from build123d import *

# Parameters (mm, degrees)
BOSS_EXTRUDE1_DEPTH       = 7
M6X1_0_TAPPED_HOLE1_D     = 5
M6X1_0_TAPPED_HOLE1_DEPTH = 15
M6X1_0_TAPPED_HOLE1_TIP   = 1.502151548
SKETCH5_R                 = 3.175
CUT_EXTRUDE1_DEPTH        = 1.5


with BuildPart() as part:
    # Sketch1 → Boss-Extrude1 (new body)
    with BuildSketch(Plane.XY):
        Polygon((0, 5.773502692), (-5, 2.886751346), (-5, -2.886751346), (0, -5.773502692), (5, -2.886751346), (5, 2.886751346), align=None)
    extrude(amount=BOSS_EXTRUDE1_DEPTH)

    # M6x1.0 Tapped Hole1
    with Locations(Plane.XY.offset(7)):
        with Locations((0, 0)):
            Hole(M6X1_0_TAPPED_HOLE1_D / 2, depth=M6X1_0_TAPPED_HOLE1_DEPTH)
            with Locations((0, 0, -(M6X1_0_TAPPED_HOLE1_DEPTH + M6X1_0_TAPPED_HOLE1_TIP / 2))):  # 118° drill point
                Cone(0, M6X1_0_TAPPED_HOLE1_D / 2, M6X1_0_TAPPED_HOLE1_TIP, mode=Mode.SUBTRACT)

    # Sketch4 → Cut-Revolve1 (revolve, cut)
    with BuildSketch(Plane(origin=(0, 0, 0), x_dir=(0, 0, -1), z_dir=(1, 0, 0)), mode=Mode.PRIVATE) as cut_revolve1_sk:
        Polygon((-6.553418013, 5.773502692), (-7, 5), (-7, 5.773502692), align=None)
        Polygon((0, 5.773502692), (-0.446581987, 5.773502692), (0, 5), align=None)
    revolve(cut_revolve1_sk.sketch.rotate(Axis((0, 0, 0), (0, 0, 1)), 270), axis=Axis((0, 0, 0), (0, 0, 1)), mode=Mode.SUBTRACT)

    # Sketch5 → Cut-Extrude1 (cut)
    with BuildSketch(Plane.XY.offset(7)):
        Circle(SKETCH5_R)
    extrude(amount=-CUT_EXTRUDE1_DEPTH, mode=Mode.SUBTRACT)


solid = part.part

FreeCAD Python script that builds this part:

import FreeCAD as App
import Part
import Sketcher
Q = App.Units.Quantity


def add_polygon(sketch, points):
    """Adds a closed chain of lines whose ends are joined by coincident constraints."""
    first, n = sketch.GeometryCount, len(points)
    for a, b in zip(points, points[1:] + points[:1]):
        sketch.addGeometry(Part.LineSegment(App.Vector(*a, 0), App.Vector(*b, 0)), False)
    for i in range(n):
        sketch.addConstraint(Sketcher.Constraint("Coincident", first + i, 2, first + (i + 1) % n, 1))

doc = App.newDocument("Part")
body = doc.addObject("PartDesign::Body", "Body")

# Sketch on XY plane
sketch1 = body.newObject("Sketcher::SketchObject", "Sketch")
sketch1.AttachmentSupport = (doc.getObject("XY_Plane"), [""])
sketch1.MapMode = "FlatFace"
add_polygon(sketch1, [(0, 6), (-5, 3), (-5, -3), (0, -6), (5, -3), (5, 3)])  # lines 0-5
sketch1.addConstraint(Sketcher.Constraint("Vertical", 1))
sketch1.addConstraint(Sketcher.Constraint("Vertical", 4))
sketch1.addConstraint(Sketcher.Constraint("Symmetric", 0, 2, 3, 2, -1, 1))
sketch1.addConstraint(Sketcher.Constraint("Symmetric", 2, 2, 5, 2, -1, 1))
sketch1.addConstraint(Sketcher.Constraint("PointOnObject", 2, 2, -2))
sketch1.addConstraint(Sketcher.Constraint("Parallel", 2, 5))
sketch1.addConstraint(Sketcher.Constraint("Horizontal", 1, 2, 3, 2))
sketch1.addConstraint(Sketcher.Constraint("Angle", 0, Q("-150 deg")))
sketch1.addConstraint(Sketcher.Constraint("DistanceX", 0, 2, -1, 1, 5.0))
sketch1.addConstraint(Sketcher.Constraint("DistanceY", 1, 2, 1, 1, 5.773503))
pad1 = body.newObject("PartDesign::Pad", "Pad")
pad1.Profile = sketch1
pad1.Length = 7

# Sketch on XY plane
sketch2 = body.newObject("Sketcher::SketchObject", "Sketch001")
sketch2.AttachmentSupport = (doc.getObject("XY_Plane"), [""])
sketch2.MapMode = "FlatFace"
sketch2.AttachmentOffset = App.Placement(App.Vector(0, 0, 7), App.Rotation())
sketch2.addGeometry(Part.Circle(App.Vector(0, 0, 0), App.Vector(0, 0, 1), 2.5), False)
sketch2.addConstraint(Sketcher.Constraint("Coincident", 0, 3, -1, 1))
sketch2.addConstraint(Sketcher.Constraint("Diameter", 0, 5.0))
doc.recompute()
hole = body.newObject("PartDesign::Hole", "Hole")
hole.Profile = sketch2
hole.ThreadType = "None"
hole.Diameter = 5
hole.DepthType = "Dimension"
hole.Depth = 15
hole.DrillPoint = "Angled"
hole.DrillPointAngle = 118

# Sketch on YZ plane
sketch3 = body.newObject("Sketcher::SketchObject", "Sketch002")
sketch3.AttachmentSupport = (doc.getObject("YZ_Plane"), [""])
sketch3.MapMode = "FlatFace"
add_polygon(sketch3, [(5, 7), (5.77, 6.55), (5.77, 7)])  # lines 0-2
add_polygon(sketch3, [(5.77, 0), (5.77, 0.45), (5, 0)])  # lines 3-5
sketch3.addConstraint(Sketcher.Constraint("Vertical", 1))
sketch3.addConstraint(Sketcher.Constraint("Horizontal", 2))
sketch3.addConstraint(Sketcher.Constraint("Vertical", 3))
sketch3.addConstraint(Sketcher.Constraint("Horizontal", 5))
sketch3.addConstraint(Sketcher.Constraint("PointOnObject", 4, 2, -1))
sketch3.addConstraint(Sketcher.Constraint("Vertical", 1, 2, 3, 2))
sketch3.addConstraint(Sketcher.Constraint("Vertical", 2, 2, 4, 2))
sketch3.addConstraint(Sketcher.Constraint("Equal", 1, 3))
sketch3.addConstraint(Sketcher.Constraint("Angle", 0, Q("-30 deg")))
sketch3.addConstraint(Sketcher.Constraint("DistanceY", -1, 1, 1, 2, 7.0))
sketch3.addConstraint(Sketcher.Constraint("DistanceX", -1, 1, 2, 2, 5.0))
sketch3.addConstraint(Sketcher.Constraint("DistanceY", 1, 1, 1, 2, 0.446582))
groove = body.newObject("PartDesign::Groove", "Groove")
groove.Profile = sketch3
groove.ReferenceAxis = (sketch3, ["V_Axis"])
groove.Angle = 360

# Sketch on XY plane
sketch4 = body.newObject("Sketcher::SketchObject", "Sketch003")
sketch4.AttachmentSupport = (doc.getObject("XY_Plane"), [""])
sketch4.MapMode = "FlatFace"
sketch4.AttachmentOffset = App.Placement(App.Vector(0, 0, 7), App.Rotation())
sketch4.addGeometry(Part.Circle(App.Vector(0, 0, 0), App.Vector(0, 0, 1), 3.2), False)
sketch4.addConstraint(Sketcher.Constraint("Coincident", 0, 3, -1, 1))
sketch4.addConstraint(Sketcher.Constraint("Diameter", 0, 6.35))
pocket1 = body.newObject("PartDesign::Pocket", "Pocket")
pocket1.Profile = sketch4
pocket1.Length = 1.5

doc.recompute()
